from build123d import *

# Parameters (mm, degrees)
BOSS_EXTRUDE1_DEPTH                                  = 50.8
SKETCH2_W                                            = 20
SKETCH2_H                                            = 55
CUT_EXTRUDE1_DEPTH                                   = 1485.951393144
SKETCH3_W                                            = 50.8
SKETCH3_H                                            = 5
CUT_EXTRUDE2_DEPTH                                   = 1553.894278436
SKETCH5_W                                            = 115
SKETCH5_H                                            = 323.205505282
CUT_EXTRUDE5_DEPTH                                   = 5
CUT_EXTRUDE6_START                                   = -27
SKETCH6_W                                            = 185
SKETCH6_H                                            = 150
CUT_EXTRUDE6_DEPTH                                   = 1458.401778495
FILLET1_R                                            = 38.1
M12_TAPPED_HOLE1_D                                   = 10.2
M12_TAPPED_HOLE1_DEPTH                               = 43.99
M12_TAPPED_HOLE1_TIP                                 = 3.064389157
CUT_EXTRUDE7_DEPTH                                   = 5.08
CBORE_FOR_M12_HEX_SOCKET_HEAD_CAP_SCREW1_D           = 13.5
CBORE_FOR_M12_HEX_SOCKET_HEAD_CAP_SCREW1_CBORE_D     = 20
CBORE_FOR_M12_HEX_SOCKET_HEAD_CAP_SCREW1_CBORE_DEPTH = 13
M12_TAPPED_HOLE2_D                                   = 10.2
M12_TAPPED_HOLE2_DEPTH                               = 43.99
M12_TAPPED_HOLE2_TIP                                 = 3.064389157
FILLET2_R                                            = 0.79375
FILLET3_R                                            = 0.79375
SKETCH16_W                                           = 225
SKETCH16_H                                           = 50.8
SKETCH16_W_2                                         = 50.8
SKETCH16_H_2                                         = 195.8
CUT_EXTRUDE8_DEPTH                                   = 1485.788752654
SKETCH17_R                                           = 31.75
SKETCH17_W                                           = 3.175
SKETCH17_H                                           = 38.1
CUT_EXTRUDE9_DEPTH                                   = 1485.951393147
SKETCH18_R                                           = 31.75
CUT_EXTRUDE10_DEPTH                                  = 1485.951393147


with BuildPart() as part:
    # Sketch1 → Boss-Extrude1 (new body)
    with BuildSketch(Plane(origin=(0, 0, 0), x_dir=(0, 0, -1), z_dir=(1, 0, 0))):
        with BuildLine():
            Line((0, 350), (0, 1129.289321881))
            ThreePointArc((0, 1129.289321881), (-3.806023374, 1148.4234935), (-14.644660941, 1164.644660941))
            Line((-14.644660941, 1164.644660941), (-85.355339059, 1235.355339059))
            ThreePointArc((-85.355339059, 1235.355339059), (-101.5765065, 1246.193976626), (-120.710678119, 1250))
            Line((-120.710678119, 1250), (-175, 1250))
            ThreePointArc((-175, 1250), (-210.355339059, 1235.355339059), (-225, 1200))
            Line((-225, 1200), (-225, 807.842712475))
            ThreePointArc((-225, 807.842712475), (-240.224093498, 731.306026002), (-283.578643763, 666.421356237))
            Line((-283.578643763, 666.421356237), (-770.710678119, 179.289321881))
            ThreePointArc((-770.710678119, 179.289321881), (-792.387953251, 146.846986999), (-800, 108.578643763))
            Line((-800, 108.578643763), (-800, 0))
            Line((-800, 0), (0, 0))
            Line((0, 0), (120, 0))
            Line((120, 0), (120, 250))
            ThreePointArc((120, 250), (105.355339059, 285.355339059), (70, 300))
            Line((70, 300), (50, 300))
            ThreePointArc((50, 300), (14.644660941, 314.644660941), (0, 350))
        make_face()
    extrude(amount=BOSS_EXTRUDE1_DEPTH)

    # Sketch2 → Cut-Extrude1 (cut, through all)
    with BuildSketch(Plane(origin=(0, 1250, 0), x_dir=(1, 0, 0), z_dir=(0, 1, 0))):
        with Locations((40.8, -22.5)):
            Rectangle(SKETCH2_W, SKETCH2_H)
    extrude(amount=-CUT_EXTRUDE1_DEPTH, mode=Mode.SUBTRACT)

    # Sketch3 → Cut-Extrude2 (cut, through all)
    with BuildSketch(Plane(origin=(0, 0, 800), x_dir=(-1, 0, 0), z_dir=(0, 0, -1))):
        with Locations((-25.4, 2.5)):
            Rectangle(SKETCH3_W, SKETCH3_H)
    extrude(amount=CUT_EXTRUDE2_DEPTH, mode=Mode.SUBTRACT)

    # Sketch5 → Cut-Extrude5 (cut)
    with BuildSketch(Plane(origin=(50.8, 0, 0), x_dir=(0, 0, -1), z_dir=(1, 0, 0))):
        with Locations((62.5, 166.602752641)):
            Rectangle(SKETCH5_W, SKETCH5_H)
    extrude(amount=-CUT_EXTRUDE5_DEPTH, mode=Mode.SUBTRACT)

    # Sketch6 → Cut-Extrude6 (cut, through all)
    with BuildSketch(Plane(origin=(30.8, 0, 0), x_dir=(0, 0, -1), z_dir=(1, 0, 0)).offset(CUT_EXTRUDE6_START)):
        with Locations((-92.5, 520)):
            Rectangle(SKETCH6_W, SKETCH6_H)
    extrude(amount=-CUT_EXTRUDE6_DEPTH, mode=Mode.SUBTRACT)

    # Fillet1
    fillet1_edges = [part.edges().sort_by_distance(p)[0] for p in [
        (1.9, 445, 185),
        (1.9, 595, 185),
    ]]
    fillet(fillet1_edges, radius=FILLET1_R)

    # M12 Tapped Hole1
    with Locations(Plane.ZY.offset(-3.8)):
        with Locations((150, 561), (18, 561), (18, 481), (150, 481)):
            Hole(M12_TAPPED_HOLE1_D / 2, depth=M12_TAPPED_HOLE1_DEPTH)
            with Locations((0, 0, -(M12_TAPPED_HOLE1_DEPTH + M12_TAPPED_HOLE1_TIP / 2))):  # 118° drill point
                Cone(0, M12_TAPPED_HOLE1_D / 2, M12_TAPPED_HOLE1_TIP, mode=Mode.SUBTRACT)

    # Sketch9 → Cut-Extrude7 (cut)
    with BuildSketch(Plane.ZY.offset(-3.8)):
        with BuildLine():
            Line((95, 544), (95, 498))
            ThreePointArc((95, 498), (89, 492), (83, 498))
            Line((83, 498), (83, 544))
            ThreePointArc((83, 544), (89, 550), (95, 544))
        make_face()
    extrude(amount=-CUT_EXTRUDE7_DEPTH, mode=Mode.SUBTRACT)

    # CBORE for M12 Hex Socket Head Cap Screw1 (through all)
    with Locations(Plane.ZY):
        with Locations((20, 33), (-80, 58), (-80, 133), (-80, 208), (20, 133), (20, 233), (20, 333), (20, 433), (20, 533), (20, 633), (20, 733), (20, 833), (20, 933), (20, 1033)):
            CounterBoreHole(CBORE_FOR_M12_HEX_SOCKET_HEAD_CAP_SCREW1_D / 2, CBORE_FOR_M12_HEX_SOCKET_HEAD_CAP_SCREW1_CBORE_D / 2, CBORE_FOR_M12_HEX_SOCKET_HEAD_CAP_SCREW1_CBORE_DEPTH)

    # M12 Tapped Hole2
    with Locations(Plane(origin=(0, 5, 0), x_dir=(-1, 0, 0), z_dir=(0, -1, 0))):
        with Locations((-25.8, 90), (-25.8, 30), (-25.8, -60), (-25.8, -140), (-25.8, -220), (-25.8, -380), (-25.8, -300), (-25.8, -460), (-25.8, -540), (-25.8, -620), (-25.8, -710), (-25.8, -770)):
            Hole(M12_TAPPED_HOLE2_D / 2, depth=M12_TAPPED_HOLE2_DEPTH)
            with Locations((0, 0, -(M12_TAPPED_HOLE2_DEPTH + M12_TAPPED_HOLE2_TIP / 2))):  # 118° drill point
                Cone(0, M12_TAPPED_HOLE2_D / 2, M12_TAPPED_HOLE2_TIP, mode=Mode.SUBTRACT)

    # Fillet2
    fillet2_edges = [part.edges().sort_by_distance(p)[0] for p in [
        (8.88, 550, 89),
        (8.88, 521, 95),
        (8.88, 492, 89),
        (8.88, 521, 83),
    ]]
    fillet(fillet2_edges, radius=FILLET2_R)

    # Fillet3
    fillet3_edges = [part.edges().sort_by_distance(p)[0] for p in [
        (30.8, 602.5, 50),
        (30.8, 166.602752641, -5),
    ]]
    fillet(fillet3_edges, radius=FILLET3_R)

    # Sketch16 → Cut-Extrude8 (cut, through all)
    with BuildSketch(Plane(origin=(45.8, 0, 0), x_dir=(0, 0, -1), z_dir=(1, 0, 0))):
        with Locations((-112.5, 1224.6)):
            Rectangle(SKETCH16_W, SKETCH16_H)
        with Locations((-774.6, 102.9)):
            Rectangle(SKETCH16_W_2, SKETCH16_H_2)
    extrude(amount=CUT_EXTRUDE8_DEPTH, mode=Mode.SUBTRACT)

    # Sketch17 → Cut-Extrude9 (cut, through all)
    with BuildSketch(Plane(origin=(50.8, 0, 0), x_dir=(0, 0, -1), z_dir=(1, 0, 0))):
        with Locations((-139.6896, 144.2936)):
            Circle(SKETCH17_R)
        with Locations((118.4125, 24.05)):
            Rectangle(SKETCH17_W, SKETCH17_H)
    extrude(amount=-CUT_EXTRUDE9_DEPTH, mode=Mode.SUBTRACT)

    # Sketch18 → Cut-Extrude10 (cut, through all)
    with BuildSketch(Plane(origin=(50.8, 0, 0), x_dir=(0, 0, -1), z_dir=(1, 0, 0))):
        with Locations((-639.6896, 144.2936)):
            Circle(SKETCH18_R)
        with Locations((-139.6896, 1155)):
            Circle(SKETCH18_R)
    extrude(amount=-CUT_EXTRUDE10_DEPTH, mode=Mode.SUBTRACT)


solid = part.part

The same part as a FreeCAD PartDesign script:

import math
import FreeCAD as App
import Part
import Sketcher
Q = App.Units.Quantity


def edges_at(feature, points):
    """Names of the edges that pass closest to the given points."""
    edges = feature.Shape.Edges
    near = lambda p: min(range(len(edges)), key=lambda i: edges[i].distToShape(Part.Vertex(*p))[0])
    return sorted({f"Edge{near(p) + 1}" for p in points})

doc = App.newDocument("Part")
body = doc.addObject("PartDesign::Body", "Body")

# Sketch on YZ plane
sketch1 = doc.addObject("Sketcher::SketchObject", "Sketch")
body.addObject(sketch1)
sketch1.AttachmentSupport = (doc.YZ_Plane, [""])
sketch1.MapMode = "FlatFace"
sketch1.addGeometry([
    Part.LineSegment(App.Vector(350, 0, 0), App.Vector(1129.289322, 0, 0)),  # 0
    Part.ArcOfCircle(Part.Circle(App.Vector(1129.289322, 50, 0), App.Vector(0, 0, 1), 50), math.radians(-90), math.radians(-45)),  # 1
    Part.LineSegment(App.Vector(1164.644661, 14.644661, 0), App.Vector(1235.355339, 85.355339, 0)),  # 2
    Part.ArcOfCircle(Part.Circle(App.Vector(1200, 120.710678, 0), App.Vector(0, 0, 1), 50), math.radians(-45), math.radians(0)),  # 3
    Part.LineSegment(App.Vector(1250, 120.710678, 0), App.Vector(1250, 175, 0)),  # 4
    Part.ArcOfCircle(Part.Circle(App.Vector(1200, 175, 0), App.Vector(0, 0, 1), 50), math.radians(0), math.radians(90)),  # 5
    Part.LineSegment(App.Vector(1200, 225, 0), App.Vector(807.842712, 225, 0)),  # 6
    Part.ArcOfCircle(Part.Circle(App.Vector(807.842712, 425, 0), App.Vector(0, 0, 1), 200), math.radians(-135), math.radians(-90)),  # 7
    Part.LineSegment(App.Vector(666.421356, 283.578644, 0), App.Vector(179.289322, 770.710678, 0)),  # 8
    Part.ArcOfCircle(Part.Circle(App.Vector(108.578644, 700, 0), App.Vector(0, 0, 1), 100), math.radians(45), math.radians(90)),  # 9
    Part.LineSegment(App.Vector(108.578644, 800, 0), App.Vector(0, 800, 0)),  # 10
    Part.LineSegment(App.Vector(0, 800, 0), App.Vector(0, -120, 0)),  # 11
    Part.LineSegment(App.Vector(0, -120, 0), App.Vector(250, -120, 0)),  # 12
    Part.ArcOfCircle(Part.Circle(App.Vector(250, -70, 0), App.Vector(0, 0, 1), 50), math.radians(-90), math.radians(0)),  # 13
    Part.LineSegment(App.Vector(300, -70, 0), App.Vector(300, -50, 0)),  # 14
    Part.ArcOfCircle(Part.Circle(App.Vector(350, -50, 0), App.Vector(0, 0, 1), 50), math.radians(90), math.radians(180)),  # 15
], False)
sketch1.addConstraint([
    Sketcher.Constraint("Tangent", 0, 2, 1, 1),
    Sketcher.Constraint("Tangent", 1, 2, 2, 1),
    Sketcher.Constraint("Tangent", 2, 2, 3, 1),
    Sketcher.Constraint("Tangent", 3, 2, 4, 1),
    Sketcher.Constraint("Tangent", 4, 2, 5, 1),
    Sketcher.Constraint("Tangent", 5, 2, 6, 1),
    Sketcher.Constraint("Tangent", 6, 2, 7, 2),
    Sketcher.Constraint("Tangent", 7, 1, 8, 1),
    Sketcher.Constraint("Tangent", 8, 2, 9, 1),
    Sketcher.Constraint("Tangent", 9, 2, 10, 1),
    Sketcher.Constraint("Coincident", 10, 2, 11, 1),
    Sketcher.Constraint("Coincident", 11, 2, 12, 1),
    Sketcher.Constraint("Tangent", 12, 2, 13, 1),
    Sketcher.Constraint("Tangent", 13, 2, 14, 1),
    Sketcher.Constraint("Tangent", 14, 2, 15, 2),
    Sketcher.Constraint("Tangent", 15, 1, 0, 1),
    Sketcher.Constraint("Horizontal", 0),
    Sketcher.Constraint("Vertical", 4),
    Sketcher.Constraint("Horizontal", 6),
    Sketcher.Constraint("Horizontal", 10),
    Sketcher.Constraint("Vertical", 11),
    Sketcher.Constraint("Horizontal", 12),
    Sketcher.Constraint("Vertical", 14),
    Sketcher.Constraint("Equal", 1, 3),
    Sketcher.Constraint("Equal", 3, 5),
    Sketcher.Constraint("Equal", 5, 13),
    Sketcher.Constraint("Equal", 13, 15),
    Sketcher.Constraint("PointOnObject", 0, 2, -1),
    Sketcher.Constraint("PointOnObject", 10, 2, -2),
    Sketcher.Constraint("Perpendicular", 2, 8),
    Sketcher.Constraint("Radius", 1, 50.0),
    Sketcher.Constraint("Radius", 7, 200.0),
    Sketcher.Constraint("Radius", 9, 100.0),
    Sketcher.Constraint("DistanceX", 12, 1, 12, 2, 250.0),
    Sketcher.Constraint("DistanceY", 11, 2, 11, 1, 920.0),
    Sketcher.Constraint("DistanceY", 14, 1, 14, 2, 20.0),
    Sketcher.Constraint("Angle", 2, Q("45 deg")),
    Sketcher.Constraint("Distance", 2, 100.0),
    Sketcher.Constraint("DistanceX", -1, 1, 3, 3, 1200.0),
    Sketcher.Constraint("DistanceY", -1, 1, 5, 3, 175.0),
    Sketcher.Constraint("DistanceX", 6, 2, 6, 1, 392.157288),
])
pad1 = doc.addObject("PartDesign::Pad", "Pad")
body.addObject(pad1)
pad1.Profile = sketch1
pad1.Length = 50.8

# Sketch on XZ plane
sketch2 = doc.addObject("Sketcher::SketchObject", "Sketch001")
body.addObject(sketch2)
sketch2.AttachmentSupport = (doc.XZ_Plane, [""])
sketch2.MapMode = "FlatFace"
sketch2.AttachmentOffset = App.Placement(App.Vector(0, 0, -1250), App.Rotation())
sketch2.addGeometry([
    Part.LineSegment(App.Vector(30.8, -5, 0), App.Vector(30.8, 50, 0)),
    Part.LineSegment(App.Vector(30.8, 50, 0), App.Vector(50.8, 50, 0)),
    Part.LineSegment(App.Vector(50.8, 50, 0), App.Vector(50.8, -5, 0)),
    Part.LineSegment(App.Vector(50.8, -5, 0), App.Vector(30.8, -5, 0)),
], False)
sketch2.addConstraint([
    Sketcher.Constraint("Coincident", 0, 2, 1, 1),
    Sketcher.Constraint("Coincident", 1, 2, 2, 1),
    Sketcher.Constraint("Coincident", 2, 2, 3, 1),
    Sketcher.Constraint("Coincident", 3, 2, 0, 1),
    Sketcher.Constraint("Vertical", 0),
    Sketcher.Constraint("Horizontal", 1),
    Sketcher.Constraint("Vertical", 2),
    Sketcher.Constraint("Horizontal", 3),
    Sketcher.Constraint("DistanceX", 1, 1, 1, 2, 20.0),
    Sketcher.Constraint("DistanceY", 0, 1, 0, 2, 55.0),
    Sketcher.Constraint("DistanceY", -1, 1, 0, 2, 50.0),
    Sketcher.Constraint("DistanceX", -1, 1, 0, 2, 30.8),
])
pocket1 = doc.addObject("PartDesign::Pocket", "Pocket")
body.addObject(pocket1)
pocket1.Profile = sketch2
pocket1.Type = "ThroughAll"
pocket1.Reversed = True

# Sketch on XY plane
sketch3 = doc.addObject("Sketcher::SketchObject", "Sketch002")
body.addObject(sketch3)
sketch3.AttachmentSupport = (doc.XY_Plane, [""])
sketch3.MapMode = "FlatFace"
sketch3.AttachmentOffset = App.Placement(App.Vector(0, 0, 800), App.Rotation())
sketch3.addGeometry([
    Part.LineSegment(App.Vector(50.8, 5, 0), App.Vector(50.8, 0, 0)),
    Part.LineSegment(App.Vector(50.8, 0, 0), App.Vector(0, 0, 0)),
    Part.LineSegment(App.Vector(0, 0, 0), App.Vector(0, 5, 0)),
    Part.LineSegment(App.Vector(0, 5, 0), App.Vector(50.8, 5, 0)),
], False)
sketch3.addConstraint([
    Sketcher.Constraint("Coincident", 0, 2, 1, 1),
    Sketcher.Constraint("Coincident", 1, 2, 2, 1),
    Sketcher.Constraint("Coincident", 2, 2, 3, 1),
    Sketcher.Constraint("Coincident", 3, 2, 0, 1),
    Sketcher.Constraint("Vertical", 0),
    Sketcher.Constraint("Horizontal", 1),
    Sketcher.Constraint("Vertical", 2),
    Sketcher.Constraint("Horizontal", 3),
    Sketcher.Constraint("Coincident", 1, 2, -1, 1),
    Sketcher.Constraint("DistanceY", 0, 2, 0, 1, 5.0),
    Sketcher.Constraint("DistanceX", 1, 2, 1, 1, 50.8),
])
pocket2 = doc.addObject("PartDesign::Pocket", "Pocket001")
body.addObject(pocket2)
pocket2.Profile = sketch3
pocket2.Type = "ThroughAll"

# Sketch on YZ plane
sketch4 = doc.addObject("Sketcher::SketchObject", "Sketch003")
body.addObject(sketch4)
sketch4.AttachmentSupport = (doc.YZ_Plane, [""])
sketch4.MapMode = "FlatFace"
sketch4.AttachmentOffset = App.Placement(App.Vector(0, 0, 50.8), App.Rotation())
sketch4.addGeometry([
    Part.LineSegment(App.Vector(328.205505, -5, 0), App.Vector(5, -5, 0)),
    Part.LineSegment(App.Vector(5, -5, 0), App.Vector(5, -120, 0)),
    Part.LineSegment(App.Vector(5, -120, 0), App.Vector(328.205505, -120, 0)),
    Part.LineSegment(App.Vector(328.205505, -120, 0), App.Vector(328.205505, -5, 0)),
], False)
sketch4.addConstraint([
    Sketcher.Constraint("Coincident", 0, 2, 1, 1),
    Sketcher.Constraint("Coincident", 1, 2, 2, 1),
    Sketcher.Constraint("Coincident", 2, 2, 3, 1),
    Sketcher.Constraint("Coincident", 3, 2, 0, 1),
    Sketcher.Constraint("Horizontal", 0),
    Sketcher.Constraint("Vertical", 1),
    Sketcher.Constraint("Horizontal", 2),
    Sketcher.Constraint("Vertical", 3),
    Sketcher.Constraint("DistanceY", 1, 2, 1, 1, 115.0),
    Sketcher.Constraint("DistanceX", -1, 1, 0, 2, 5.0),
    Sketcher.Constraint("DistanceY", 0, 2, -1, 1, 5.0),
    Sketcher.Constraint("DistanceX", 0, 2, 0, 1, 323.205505),
])
pocket3 = doc.addObject("PartDesign::Pocket", "Pocket002")
body.addObject(pocket3)
pocket3.Profile = sketch4
pocket3.Length = 5

# Sketch on YZ plane
sketch5 = doc.addObject("Sketcher::SketchObject", "Sketch004")
body.addObject(sketch5)
sketch5.AttachmentSupport = (doc.YZ_Plane, [""])
sketch5.MapMode = "FlatFace"
sketch5.AttachmentOffset = App.Placement(App.Vector(0, 0, 3.8), App.Rotation())
sketch5.addGeometry([
    Part.LineSegment(App.Vector(595, 185, 0), App.Vector(445, 185, 0)),
    Part.LineSegment(App.Vector(445, 185, 0), App.Vector(445, 0, 0)),
    Part.LineSegment(App.Vector(445, 0, 0), App.Vector(595, 0, 0)),
    Part.LineSegment(App.Vector(595, 0, 0), App.Vector(595, 185, 0)),
], False)
sketch5.addConstraint([
    Sketcher.Constraint("Coincident", 0, 2, 1, 1),
    Sketcher.Constraint("Coincident", 1, 2, 2, 1),
    Sketcher.Constraint("Coincident", 2, 2, 3, 1),
    Sketcher.Constraint("Coincident", 3, 2, 0, 1),
    Sketcher.Constraint("Horizontal", 0),
    Sketcher.Constraint("Vertical", 1),
    Sketcher.Constraint("Horizontal", 2),
    Sketcher.Constraint("Vertical", 3),
    Sketcher.Constraint("PointOnObject", 1, 2, -1),
    Sketcher.Constraint("DistanceX", 0, 2, 0, 1, 150.0),
    Sketcher.Constraint("DistanceY", 1, 2, 1, 1, 185.0),
    Sketcher.Constraint("DistanceX", -1, 1, 0, 2, 445.0),
])
pocket4 = doc.addObject("PartDesign::Pocket", "Pocket003")
body.addObject(pocket4)
pocket4.Profile = sketch5
pocket4.Type = "ThroughAll"
doc.recompute()

fillet = doc.addObject("PartDesign::Fillet", "Fillet")
body.addObject(fillet)
fillet.Base = (pocket4, edges_at(pocket4, [(1.9, 445, 185), (1.9, 595, 185)]))
fillet.Radius = 38.1

# Sketch on YZ plane
sketch6 = doc.addObject("Sketcher::SketchObject", "Sketch005")
body.addObject(sketch6)
sketch6.AttachmentSupport = (doc.YZ_Plane, [""])
sketch6.MapMode = "FlatFace"
sketch6.AttachmentOffset = App.Placement(App.Vector(0, 0, 3.8), App.Rotation())
sketch6.addGeometry([
    Part.Circle(App.Vector(561, 150, 0), App.Vector(0, 0, 1), 5.1),
    Part.Circle(App.Vector(561, 18, 0), App.Vector(0, 0, 1), 5.1),
    Part.Circle(App.Vector(481, 18, 0), App.Vector(0, 0, 1), 5.1),
    Part.Circle(App.Vector(481, 150, 0), App.Vector(0, 0, 1), 5.1),
], False)
sketch6.addConstraint([
    Sketcher.Constraint("Equal", 0, 1),
    Sketcher.Constraint("Equal", 1, 2),
    Sketcher.Constraint("Equal", 2, 3),
    Sketcher.Constraint("Horizontal", 1, 3, 2, 3),
    Sketcher.Constraint("Horizontal", 0, 3, 3, 3),
    Sketcher.Constraint("Vertical", 0, 3, 1, 3),
    Sketcher.Constraint("Vertical", 2, 3, 3, 3),
    Sketcher.Constraint("Diameter", 0, 10.2),
    Sketcher.Constraint("DistanceX", -1, 1, 0, 3, 561.0),
    Sketcher.Constraint("DistanceY", -1, 1, 0, 3, 150.0),
    Sketcher.Constraint("DistanceY", -1, 1, 1, 3, 18.0),
    Sketcher.Constraint("DistanceX", -1, 1, 2, 3, 481.0),
])
doc.recompute()
hole = doc.addObject("PartDesign::Hole", "Hole")
body.addObject(hole)
hole.Profile = sketch6
hole.ThreadType = "None"
hole.Diameter = 10.2
hole.DepthType = "Dimension"
hole.Depth = 43.99
hole.DrillPoint = "Angled"
hole.DrillPointAngle = 118
hole.Reversed = True

# Sketch on YZ plane
sketch7 = doc.addObject("Sketcher::SketchObject", "Sketch006")
body.addObject(sketch7)
sketch7.AttachmentSupport = (doc.YZ_Plane, [""])
sketch7.MapMode = "FlatFace"
sketch7.AttachmentOffset = App.Placement(App.Vector(0, 0, 3.8), App.Rotation())
sketch7.addGeometry([
    Part.LineSegment(App.Vector(498, 95, 0), App.Vector(544, 95, 0)),
    Part.ArcOfCircle(Part.Circle(App.Vector(544, 89, 0), App.Vector(0, 0, 1), 6), math.radians(-90), math.radians(90)),
    Part.LineSegment(App.Vector(544, 83, 0), App.Vector(498, 83, 0)),
    Part.ArcOfCircle(Part.Circle(App.Vector(498, 89, 0), App.Vector(0, 0, 1), 6), math.radians(90), math.radians(270)),
], False)
sketch7.addConstraint([
    Sketcher.Constraint("Tangent", 0, 2, 1, 2),
    Sketcher.Constraint("Tangent", 1, 1, 2, 1),
    Sketcher.Constraint("Tangent", 2, 2, 3, 2),
    Sketcher.Constraint("Tangent", 3, 1, 0, 1),
    Sketcher.Constraint("Horizontal", 0),
    Sketcher.Constraint("Horizontal", 2),
    Sketcher.Constraint("Radius", 1, 6.0),
    Sketcher.Constraint("DistanceX", 0, 1, 0, 2, 46.0),
    Sketcher.Constraint("DistanceX", -1, 1, 1, 3, 544.0),
    Sketcher.Constraint("DistanceY", -1, 1, 1, 3, 89.0),
])
pocket5 = doc.addObject("PartDesign::Pocket", "Pocket004")
body.addObject(pocket5)
pocket5.Profile = sketch7
pocket5.Length = 5.08
pocket5.Reversed = True

# Sketch on YZ plane
sketch8 = doc.addObject("Sketcher::SketchObject", "Sketch007")
body.addObject(sketch8)
sketch8.AttachmentSupport = (doc.YZ_Plane, [""])
sketch8.MapMode = "FlatFace"
sketch8.addGeometry([
    Part.Circle(App.Vector(33, 20, 0), App.Vector(0, 0, 1), 6.75),  # 0
    Part.Circle(App.Vector(58, -80, 0), App.Vector(0, 0, 1), 6.75),  # 1
    Part.Circle(App.Vector(133, -80, 0), App.Vector(0, 0, 1), 6.75),  # 2
    Part.Circle(App.Vector(208, -80, 0), App.Vector(0, 0, 1), 6.75),  # 3
    Part.Circle(App.Vector(133, 20, 0), App.Vector(0, 0, 1), 6.75),  # 4
    Part.Circle(App.Vector(233, 20, 0), App.Vector(0, 0, 1), 6.75),  # 5
    Part.Circle(App.Vector(333, 20, 0), App.Vector(0, 0, 1), 6.75),  # 6
    Part.Circle(App.Vector(433, 20, 0), App.Vector(0, 0, 1), 6.75),  # 7
    Part.Circle(App.Vector(533, 20, 0), App.Vector(0, 0, 1), 6.75),  # 8
    Part.Circle(App.Vector(633, 20, 0), App.Vector(0, 0, 1), 6.75),  # 9
    Part.Circle(App.Vector(733, 20, 0), App.Vector(0, 0, 1), 6.75),  # 10
    Part.Circle(App.Vector(833, 20, 0), App.Vector(0, 0, 1), 6.75),  # 11
    Part.Circle(App.Vector(933, 20, 0), App.Vector(0, 0, 1), 6.75),  # 12
    Part.Circle(App.Vector(1033, 20, 0), App.Vector(0, 0, 1), 6.75),  # 13
], False)
sketch8.addConstraint([
    Sketcher.Constraint("Equal", 0, 1),
    Sketcher.Constraint("Equal", 1, 2),
    Sketcher.Constraint("Equal", 2, 3),
    Sketcher.Constraint("Equal", 3, 4),
    Sketcher.Constraint("Equal", 4, 5),
    Sketcher.Constraint("Equal", 5, 6),
    Sketcher.Constraint("Equal", 6, 7),
    Sketcher.Constraint("Equal", 7, 8),
    Sketcher.Constraint("Equal", 8, 9),
    Sketcher.Constraint("Equal", 9, 10),
    Sketcher.Constraint("Equal", 10, 11),
    Sketcher.Constraint("Equal", 11, 12),
    Sketcher.Constraint("Equal", 12, 13),
    Sketcher.Constraint("Horizontal", 1, 3, 2, 3),
    Sketcher.Constraint("Horizontal", 2, 3, 3, 3),
    Sketcher.Constraint("Horizontal", 0, 3, 4, 3),
    Sketcher.Constraint("Horizontal", 4, 3, 5, 3),
    Sketcher.Constraint("Horizontal", 5, 3, 6, 3),
    Sketcher.Constraint("Horizontal", 6, 3, 7, 3),
    Sketcher.Constraint("Horizontal", 7, 3, 8, 3),
    Sketcher.Constraint("Horizontal", 8, 3, 9, 3),
    Sketcher.Constraint("Horizontal", 9, 3, 10, 3),
    Sketcher.Constraint("Horizontal", 10, 3, 11, 3),
    Sketcher.Constraint("Horizontal", 11, 3, 12, 3),
    Sketcher.Constraint("Horizontal", 12, 3, 13, 3),
    Sketcher.Constraint("Vertical", 2, 3, 4, 3),
    Sketcher.Constraint("Diameter", 0, 13.5),
    Sketcher.Constraint("DistanceX", -1, 1, 0, 3, 33.0),
    Sketcher.Constraint("DistanceY", -1, 1, 0, 3, 20.0),
    Sketcher.Constraint("DistanceX", -1, 1, 1, 3, 58.0),
    Sketcher.Constraint("DistanceY", 1, 3, -1, 1, 80.0),
    Sketcher.Constraint("DistanceX", -1, 1, 2, 3, 133.0),
    Sketcher.Constraint("DistanceX", -1, 1, 3, 3, 208.0),
    Sketcher.Constraint("DistanceX", -1, 1, 5, 3, 233.0),
    Sketcher.Constraint("DistanceX", -1, 1, 6, 3, 333.0),
    Sketcher.Constraint("DistanceX", -1, 1, 7, 3, 433.0),
    Sketcher.Constraint("DistanceX", -1, 1, 8, 3, 533.0),
    Sketcher.Constraint("DistanceX", -1, 1, 9, 3, 633.0),
    Sketcher.Constraint("DistanceX", -1, 1, 10, 3, 733.0),
    Sketcher.Constraint("DistanceX", -1, 1, 11, 3, 833.0),
    Sketcher.Constraint("DistanceX", -1, 1, 12, 3, 933.0),
    Sketcher.Constraint("DistanceX", -1, 1, 13, 3, 1033.0),
])
doc.recompute()
hole2 = doc.addObject("PartDesign::Hole", "Hole001")
body.addObject(hole2)
hole2.Profile = sketch8
hole2.ThreadType = "None"
hole2.Diameter = 13.5
hole2.DepthType = "ThroughAll"
hole2.HoleCutType = "Counterbore"
hole2.HoleCutDiameter = 20
hole2.HoleCutDepth = 13
hole2.Reversed = True

# Sketch on XZ plane
sketch9 = doc.addObject("Sketcher::SketchObject", "Sketch008")
body.addObject(sketch9)
sketch9.AttachmentSupport = (doc.XZ_Plane, [""])
sketch9.MapMode = "FlatFace"
sketch9.AttachmentOffset = App.Placement(App.Vector(0, 0, -5), App.Rotation())
sketch9.addGeometry([
    Part.Circle(App.Vector(25.8, -90, 0), App.Vector(0, 0, 1), 5.1),  # 0
    Part.Circle(App.Vector(25.8, -30, 0), App.Vector(0, 0, 1), 5.1),  # 1
    Part.Circle(App.Vector(25.8, 60, 0), App.Vector(0, 0, 1), 5.1),  # 2
    Part.Circle(App.Vector(25.8, 140, 0), App.Vector(0, 0, 1), 5.1),  # 3
    Part.Circle(App.Vector(25.8, 220, 0), App.Vector(0, 0, 1), 5.1),  # 4
    Part.Circle(App.Vector(25.8, 380, 0), App.Vector(0, 0, 1), 5.1),  # 5
    Part.Circle(App.Vector(25.8, 300, 0), App.Vector(0, 0, 1), 5.1),  # 6
    Part.Circle(App.Vector(25.8, 460, 0), App.Vector(0, 0, 1), 5.1),  # 7
    Part.Circle(App.Vector(25.8, 540, 0), App.Vector(0, 0, 1), 5.1),  # 8
    Part.Circle(App.Vector(25.8, 620, 0), App.Vector(0, 0, 1), 5.1),  # 9
    Part.Circle(App.Vector(25.8, 710, 0), App.Vector(0, 0, 1), 5.1),  # 10
    Part.Circle(App.Vector(25.8, 770, 0), App.Vector(0, 0, 1), 5.1),  # 11
], False)
sketch9.addConstraint([
    Sketcher.Constraint("Equal", 0, 1),
    Sketcher.Constraint("Equal", 1, 2),
    Sketcher.Constraint("Equal", 2, 3),
    Sketcher.Constraint("Equal", 3, 4),
    Sketcher.Constraint("Equal", 4, 5),
    Sketcher.Constraint("Equal", 5, 6),
    Sketcher.Constraint("Equal", 6, 7),
    Sketcher.Constraint("Equal", 7, 8),
    Sketcher.Constraint("Equal", 8, 9),
    Sketcher.Constraint("Equal", 9, 10),
    Sketcher.Constraint("Equal", 10, 11),
    Sketcher.Constraint("Vertical", 0, 3, 1, 3),
    Sketcher.Constraint("Vertical", 1, 3, 2, 3),
    Sketcher.Constraint("Vertical", 2, 3, 3, 3),
    Sketcher.Constraint("Vertical", 3, 3, 4, 3),
    Sketcher.Constraint("Vertical", 4, 3, 5, 3),
    Sketcher.Constraint("Vertical", 5, 3, 6, 3),
    Sketcher.Constraint("Vertical", 6, 3, 7, 3),
    Sketcher.Constraint("Vertical", 7, 3, 8, 3),
    Sketcher.Constraint("Vertical", 8, 3, 9, 3),
    Sketcher.Constraint("Vertical", 9, 3, 10, 3),
    Sketcher.Constraint("Vertical", 10, 3, 11, 3),
    Sketcher.Constraint("Diameter", 0, 10.2),
    Sketcher.Constraint("DistanceY", 0, 3, -1, 1, 90.0),
    Sketcher.Constraint("DistanceY", 1, 3, -1, 1, 30.0),
    Sketcher.Constraint("DistanceY", -1, 1, 2, 3, 60.0),
    Sketcher.Constraint("DistanceY", -1, 1, 3, 3, 140.0),
    Sketcher.Constraint("DistanceY", -1, 1, 4, 3, 220.0),
    Sketcher.Constraint("DistanceY", -1, 1, 5, 3, 380.0),
    Sketcher.Constraint("DistanceY", -1, 1, 6, 3, 300.0),
    Sketcher.Constraint("DistanceY", -1, 1, 7, 3, 460.0),
    Sketcher.Constraint("DistanceY", -1, 1, 8, 3, 540.0),
    Sketcher.Constraint("DistanceY", -1, 1, 9, 3, 620.0),
    Sketcher.Constraint("DistanceY", -1, 1, 10, 3, 710.0),
    Sketcher.Constraint("DistanceY", -1, 1, 11, 3, 770.0),
    Sketcher.Constraint("DistanceX", -1, 1, 0, 3, 25.8),
])
doc.recompute()
hole3 = doc.addObject("PartDesign::Hole", "Hole002")
body.addObject(hole3)
hole3.Profile = sketch9
hole3.ThreadType = "None"
hole3.Diameter = 10.2
hole3.DepthType = "Dimension"
hole3.Depth = 43.99
hole3.DrillPoint = "Angled"
hole3.DrillPointAngle = 118
doc.recompute()

fillet2 = doc.addObject("PartDesign::Fillet", "Fillet001")
body.addObject(fillet2)
fillet2.Base = (hole3, edges_at(hole3, [
    (8.88, 550, 89),
    (8.88, 521, 95),
    (8.88, 492, 89),
    (8.88, 521, 83),
]))
fillet2.Radius = 0.79375
doc.recompute()

fillet3 = doc.addObject("PartDesign::Fillet", "Fillet002")
body.addObject(fillet3)
fillet3.Base = (fillet2, edges_at(fillet2, [(30.8, 602.5, 50), (30.8, 166.603, -5)]))
fillet3.Radius = 0.79375

# Sketch on YZ plane
sketch10 = doc.addObject("Sketcher::SketchObject", "Sketch009")
body.addObject(sketch10)
sketch10.AttachmentSupport = (doc.YZ_Plane, [""])
sketch10.MapMode = "FlatFace"
sketch10.AttachmentOffset = App.Placement(App.Vector(0, 0, 45.8), App.Rotation())
sketch10.addGeometry([
    Part.LineSegment(App.Vector(1250, 225, 0), App.Vector(1199.2, 225, 0)),  # 0
    Part.LineSegment(App.Vector(1199.2, 225, 0), App.Vector(1199.2, 0, 0)),  # 1
    Part.LineSegment(App.Vector(1199.2, 0, 0), App.Vector(1250, 0, 0)),  # 2
    Part.LineSegment(App.Vector(1250, 0, 0), App.Vector(1250, 225, 0)),  # 3
    Part.LineSegment(App.Vector(200.8, 800, 0), App.Vector(5, 800, 0)),  # 4
    Part.LineSegment(App.Vector(5, 800, 0), App.Vector(5, 749.2, 0)),  # 5
    Part.LineSegment(App.Vector(5, 749.2, 0), App.Vector(200.8, 749.2, 0)),  # 6
    Part.LineSegment(App.Vector(200.8, 749.2, 0), App.Vector(200.8, 800, 0)),  # 7
], False)
sketch10.addConstraint([
    Sketcher.Constraint("Coincident", 0, 2, 1, 1),
    Sketcher.Constraint("Coincident", 1, 2, 2, 1),
    Sketcher.Constraint("Coincident", 2, 2, 3, 1),
    Sketcher.Constraint("Coincident", 3, 2, 0, 1),
    Sketcher.Constraint("Coincident", 4, 2, 5, 1),
    Sketcher.Constraint("Coincident", 5, 2, 6, 1),
    Sketcher.Constraint("Coincident", 6, 2, 7, 1),
    Sketcher.Constraint("Coincident", 7, 2, 4, 1),
    Sketcher.Constraint("Horizontal", 0),
    Sketcher.Constraint("Vertical", 1),
    Sketcher.Constraint("Horizontal", 2),
    Sketcher.Constraint("Vertical", 3),
    Sketcher.Constraint("Horizontal", 4),
    Sketcher.Constraint("Vertical", 5),
    Sketcher.Constraint("Horizontal", 6),
    Sketcher.Constraint("Vertical", 7),
    Sketcher.Constraint("PointOnObject", 1, 2, -1),
    Sketcher.Constraint("Equal", 2, 5),
    Sketcher.Constraint("DistanceY", 1, 2, 1, 1, 225.0),
    Sketcher.Constraint("DistanceX", 0, 2, 0, 1, 50.8),
    Sketcher.Constraint("DistanceX", 4, 2, 4, 1, 195.8),
    Sketcher.Constraint("DistanceX", -1, 1, 2, 2, 1250.0),
    Sketcher.Constraint("DistanceX", -1, 1, 4, 2, 5.0),
    Sketcher.Constraint("DistanceY", -1, 1, 4, 2, 800.0),
])
pocket6 = doc.addObject("PartDesign::Pocket", "Pocket005")
body.addObject(pocket6)
pocket6.Profile = sketch10
pocket6.Type = "ThroughAll"
pocket6.Reversed = True

# Sketch on YZ plane
sketch11 = doc.addObject("Sketcher::SketchObject", "Sketch010")
body.addObject(sketch11)
sketch11.AttachmentSupport = (doc.YZ_Plane, [""])
sketch11.MapMode = "FlatFace"
sketch11.AttachmentOffset = App.Placement(App.Vector(0, 0, 50.8), App.Rotation())
sketch11.addGeometry([
    Part.Circle(App.Vector(144.2936, 139.6896, 0), App.Vector(0, 0, 1), 31.75),  # 0
    Part.LineSegment(App.Vector(43.1, -116.825, 0), App.Vector(5, -116.825, 0)),  # 1
    Part.LineSegment(App.Vector(5, -116.825, 0), App.Vector(5, -120, 0)),  # 2
    Part.LineSegment(App.Vector(5, -120, 0), App.Vector(43.1, -120, 0)),  # 3
    Part.LineSegment(App.Vector(43.1, -120, 0), App.Vector(43.1, -116.825, 0)),  # 4
], False)
sketch11.addConstraint([
    Sketcher.Constraint("Coincident", 1, 2, 2, 1),
    Sketcher.Constraint("Coincident", 2, 2, 3, 1),
    Sketcher.Constraint("Coincident", 3, 2, 4, 1),
    Sketcher.Constraint("Coincident", 4, 2, 1, 1),
    Sketcher.Constraint("Horizontal", 1),
    Sketcher.Constraint("Vertical", 2),
    Sketcher.Constraint("Horizontal", 3),
    Sketcher.Constraint("Vertical", 4),
    Sketcher.Constraint("Diameter", 0, 63.5),
    Sketcher.Constraint("DistanceX", 1, 2, 1, 1, 38.1),
    Sketcher.Constraint("DistanceX", -1, 1, 1, 2, 5.0),
    Sketcher.Constraint("DistanceY", 2, 2, -1, 1, 120.0),
    Sketcher.Constraint("DistanceY", 2, 2, 2, 1, 3.175),
    Sketcher.Constraint("DistanceX", -1, 1, 0, 3, 144.2936),
    Sketcher.Constraint("DistanceY", -1, 1, 0, 3, 139.6896),
])
pocket7 = doc.addObject("PartDesign::Pocket", "Pocket006")
body.addObject(pocket7)
pocket7.Profile = sketch11
pocket7.Type = "ThroughAll"

# Sketch on YZ plane
sketch12 = doc.addObject("Sketcher::SketchObject", "Sketch011")
body.addObject(sketch12)
sketch12.AttachmentSupport = (doc.YZ_Plane, [""])
sketch12.MapMode = "FlatFace"
sketch12.AttachmentOffset = App.Placement(App.Vector(0, 0, 50.8), App.Rotation())
sketch12.addGeometry([
    Part.Circle(App.Vector(144.2936, 639.6896, 0), App.Vector(0, 0, 1), 31.75),
    Part.Circle(App.Vector(1155, 139.6896, 0), App.Vector(0, 0, 1), 31.75),
], False)
sketch12.addConstraint([
    Sketcher.Constraint("Equal", 0, 1),
    Sketcher.Constraint("Diameter", 0, 63.5),
    Sketcher.Constraint("DistanceX", -1, 1, 1, 3, 1155.0),
    Sketcher.Constraint("DistanceY", 1, 3, 0, 3, 500.0),
    Sketcher.Constraint("DistanceX", -1, 1, 0, 3, 144.2936),
    Sketcher.Constraint("DistanceY", -1, 1, 0, 3, 639.6896),
])
pocket8 = doc.addObject("PartDesign::Pocket", "Pocket007")
body.addObject(pocket8)
pocket8.Profile = sketch12
pocket8.Type = "ThroughAll"

doc.recompute()
